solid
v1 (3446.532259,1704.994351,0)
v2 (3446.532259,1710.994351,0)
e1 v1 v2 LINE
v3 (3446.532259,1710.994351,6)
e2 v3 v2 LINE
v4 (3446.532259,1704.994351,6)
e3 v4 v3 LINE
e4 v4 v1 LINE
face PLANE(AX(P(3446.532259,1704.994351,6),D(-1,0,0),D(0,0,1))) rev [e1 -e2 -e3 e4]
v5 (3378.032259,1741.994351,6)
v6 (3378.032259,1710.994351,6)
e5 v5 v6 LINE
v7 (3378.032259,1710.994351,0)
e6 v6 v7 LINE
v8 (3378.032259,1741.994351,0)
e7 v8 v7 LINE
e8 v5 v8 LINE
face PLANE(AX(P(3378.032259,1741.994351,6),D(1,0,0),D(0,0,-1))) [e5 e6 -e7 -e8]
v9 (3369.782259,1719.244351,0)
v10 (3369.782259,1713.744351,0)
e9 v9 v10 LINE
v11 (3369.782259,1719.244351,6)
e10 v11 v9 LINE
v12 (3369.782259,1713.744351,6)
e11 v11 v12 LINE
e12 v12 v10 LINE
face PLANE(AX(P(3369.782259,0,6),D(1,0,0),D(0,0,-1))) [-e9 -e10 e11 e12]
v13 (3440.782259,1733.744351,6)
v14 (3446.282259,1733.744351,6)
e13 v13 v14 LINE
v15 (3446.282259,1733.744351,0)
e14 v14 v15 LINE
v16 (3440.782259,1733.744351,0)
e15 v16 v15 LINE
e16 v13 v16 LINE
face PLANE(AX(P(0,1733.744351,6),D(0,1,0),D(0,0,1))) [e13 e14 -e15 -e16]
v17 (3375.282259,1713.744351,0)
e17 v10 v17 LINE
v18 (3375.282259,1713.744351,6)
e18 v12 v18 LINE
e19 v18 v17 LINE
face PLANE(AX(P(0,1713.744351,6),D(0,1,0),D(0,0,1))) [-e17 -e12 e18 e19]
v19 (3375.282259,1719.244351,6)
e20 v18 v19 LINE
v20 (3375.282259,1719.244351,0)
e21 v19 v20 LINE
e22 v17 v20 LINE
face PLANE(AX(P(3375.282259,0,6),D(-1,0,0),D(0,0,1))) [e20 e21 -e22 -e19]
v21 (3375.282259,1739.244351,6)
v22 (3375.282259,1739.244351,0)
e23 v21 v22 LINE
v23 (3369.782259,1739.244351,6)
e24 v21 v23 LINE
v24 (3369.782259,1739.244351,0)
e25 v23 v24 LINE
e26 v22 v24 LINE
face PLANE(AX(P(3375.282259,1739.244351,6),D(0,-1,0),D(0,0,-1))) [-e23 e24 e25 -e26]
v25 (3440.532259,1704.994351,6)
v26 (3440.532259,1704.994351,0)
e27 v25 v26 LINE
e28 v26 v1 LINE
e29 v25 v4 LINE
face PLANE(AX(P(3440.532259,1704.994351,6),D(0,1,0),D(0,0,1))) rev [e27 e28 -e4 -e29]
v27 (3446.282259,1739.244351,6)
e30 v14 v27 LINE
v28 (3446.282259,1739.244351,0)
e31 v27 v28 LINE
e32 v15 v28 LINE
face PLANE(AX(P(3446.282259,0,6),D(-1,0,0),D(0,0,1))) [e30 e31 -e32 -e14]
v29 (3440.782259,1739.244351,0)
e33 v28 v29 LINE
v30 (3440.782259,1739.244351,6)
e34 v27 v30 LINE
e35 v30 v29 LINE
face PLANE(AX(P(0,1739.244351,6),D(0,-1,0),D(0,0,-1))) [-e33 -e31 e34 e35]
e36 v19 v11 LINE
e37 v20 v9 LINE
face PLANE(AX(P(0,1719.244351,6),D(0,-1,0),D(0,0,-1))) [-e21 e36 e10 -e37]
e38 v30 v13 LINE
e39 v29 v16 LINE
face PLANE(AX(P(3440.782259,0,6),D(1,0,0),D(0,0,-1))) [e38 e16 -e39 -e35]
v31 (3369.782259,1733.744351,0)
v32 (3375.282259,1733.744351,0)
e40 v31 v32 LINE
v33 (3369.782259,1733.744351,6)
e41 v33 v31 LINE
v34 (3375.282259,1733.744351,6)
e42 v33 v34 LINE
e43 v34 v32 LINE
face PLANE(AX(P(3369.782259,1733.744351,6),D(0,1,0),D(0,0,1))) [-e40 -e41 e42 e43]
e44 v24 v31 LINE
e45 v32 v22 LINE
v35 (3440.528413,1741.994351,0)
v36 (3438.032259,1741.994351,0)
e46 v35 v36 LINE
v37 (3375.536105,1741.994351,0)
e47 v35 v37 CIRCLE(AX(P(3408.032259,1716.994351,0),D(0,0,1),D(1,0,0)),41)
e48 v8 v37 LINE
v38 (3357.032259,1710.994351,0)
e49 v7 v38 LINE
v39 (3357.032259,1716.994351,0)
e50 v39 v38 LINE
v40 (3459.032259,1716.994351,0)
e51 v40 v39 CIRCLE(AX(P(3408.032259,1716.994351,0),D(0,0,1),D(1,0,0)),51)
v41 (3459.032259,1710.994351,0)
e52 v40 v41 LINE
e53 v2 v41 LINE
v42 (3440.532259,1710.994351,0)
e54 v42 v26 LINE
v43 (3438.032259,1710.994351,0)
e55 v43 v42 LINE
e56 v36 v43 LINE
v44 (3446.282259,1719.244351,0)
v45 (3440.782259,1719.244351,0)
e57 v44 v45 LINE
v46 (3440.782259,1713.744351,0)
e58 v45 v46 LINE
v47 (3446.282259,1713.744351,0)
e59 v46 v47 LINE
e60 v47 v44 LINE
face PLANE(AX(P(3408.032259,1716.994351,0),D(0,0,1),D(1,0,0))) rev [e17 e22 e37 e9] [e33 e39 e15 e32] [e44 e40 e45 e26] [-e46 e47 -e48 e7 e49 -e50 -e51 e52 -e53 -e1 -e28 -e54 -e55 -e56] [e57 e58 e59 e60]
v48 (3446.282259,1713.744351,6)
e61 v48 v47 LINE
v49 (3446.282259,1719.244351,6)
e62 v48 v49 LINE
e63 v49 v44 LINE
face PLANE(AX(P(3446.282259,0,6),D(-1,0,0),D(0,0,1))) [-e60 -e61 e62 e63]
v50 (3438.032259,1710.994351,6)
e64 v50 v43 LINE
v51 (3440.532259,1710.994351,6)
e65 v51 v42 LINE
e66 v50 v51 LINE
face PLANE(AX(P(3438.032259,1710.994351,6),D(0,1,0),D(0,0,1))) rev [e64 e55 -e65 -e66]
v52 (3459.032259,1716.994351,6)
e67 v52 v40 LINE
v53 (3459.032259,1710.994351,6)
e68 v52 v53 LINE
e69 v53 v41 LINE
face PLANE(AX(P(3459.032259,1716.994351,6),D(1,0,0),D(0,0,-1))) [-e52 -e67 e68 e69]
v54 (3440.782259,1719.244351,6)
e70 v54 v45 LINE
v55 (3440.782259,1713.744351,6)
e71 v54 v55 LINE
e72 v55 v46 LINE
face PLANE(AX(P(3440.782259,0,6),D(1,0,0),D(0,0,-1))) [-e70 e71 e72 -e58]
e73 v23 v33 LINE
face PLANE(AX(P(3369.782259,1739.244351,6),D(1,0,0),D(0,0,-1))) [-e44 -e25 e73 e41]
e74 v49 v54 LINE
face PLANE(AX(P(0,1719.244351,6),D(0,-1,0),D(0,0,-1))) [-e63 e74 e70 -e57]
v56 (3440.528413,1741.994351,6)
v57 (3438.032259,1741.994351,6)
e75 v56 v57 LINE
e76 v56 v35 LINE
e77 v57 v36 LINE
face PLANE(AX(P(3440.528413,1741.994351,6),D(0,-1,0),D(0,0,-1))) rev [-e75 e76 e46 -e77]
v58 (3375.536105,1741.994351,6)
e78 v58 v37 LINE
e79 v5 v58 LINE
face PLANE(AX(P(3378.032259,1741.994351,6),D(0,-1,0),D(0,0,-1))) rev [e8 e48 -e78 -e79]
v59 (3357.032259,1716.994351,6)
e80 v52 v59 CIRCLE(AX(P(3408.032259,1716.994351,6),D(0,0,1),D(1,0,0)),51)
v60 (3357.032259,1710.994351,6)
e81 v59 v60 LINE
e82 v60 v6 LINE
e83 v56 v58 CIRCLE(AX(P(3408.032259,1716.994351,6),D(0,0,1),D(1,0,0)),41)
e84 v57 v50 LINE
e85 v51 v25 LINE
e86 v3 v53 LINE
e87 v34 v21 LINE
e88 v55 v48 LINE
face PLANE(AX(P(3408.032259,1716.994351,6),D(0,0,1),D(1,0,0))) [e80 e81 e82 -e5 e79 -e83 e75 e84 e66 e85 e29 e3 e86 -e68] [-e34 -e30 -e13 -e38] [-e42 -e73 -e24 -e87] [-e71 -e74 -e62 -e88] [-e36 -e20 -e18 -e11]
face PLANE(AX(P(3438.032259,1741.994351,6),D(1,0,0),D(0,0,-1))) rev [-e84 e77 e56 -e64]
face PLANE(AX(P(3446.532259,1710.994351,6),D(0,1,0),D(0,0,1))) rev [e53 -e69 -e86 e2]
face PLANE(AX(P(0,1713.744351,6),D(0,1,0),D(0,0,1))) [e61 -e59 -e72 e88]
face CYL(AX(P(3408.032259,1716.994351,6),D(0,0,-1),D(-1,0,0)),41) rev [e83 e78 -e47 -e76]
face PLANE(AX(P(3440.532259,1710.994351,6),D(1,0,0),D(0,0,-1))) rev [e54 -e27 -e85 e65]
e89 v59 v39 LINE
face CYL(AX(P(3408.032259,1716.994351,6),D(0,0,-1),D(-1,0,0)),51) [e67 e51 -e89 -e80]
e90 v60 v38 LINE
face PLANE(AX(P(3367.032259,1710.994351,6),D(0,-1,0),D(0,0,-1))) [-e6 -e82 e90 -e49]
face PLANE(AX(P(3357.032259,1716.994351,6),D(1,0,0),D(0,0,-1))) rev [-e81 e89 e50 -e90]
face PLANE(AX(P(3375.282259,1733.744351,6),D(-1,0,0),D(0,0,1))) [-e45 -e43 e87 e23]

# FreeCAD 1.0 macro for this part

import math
import FreeCAD as App
import Part
import Sketcher

V = App.Vector

doc = App.newDocument("Part")
params = doc.addObject("Spreadsheet::Sheet", "Params")
for row, (alias, value) in enumerate([
    ("sketch1_radius", "41 mm"),
    ("sketch1_radius2", "51 mm"),
    ("sketch1_width", "21 mm"),
    ("sketch1_width2", "6 mm"),
    ("sketch1_height", "31 mm"),
    ("pad1_length", "6 mm"),
], start=1):
    params.set(f"A{row}", alias)
    params.set(f"B{row}", "=" + value)
    params.setAlias(f"B{row}", alias)

body = doc.addObject("PartDesign::Body", "Body")

sketch1 = body.newObject("Sketcher::SketchObject", "Sketch")
sketch1.AttachmentSupport = (doc.getObject("XY_Plane"), [""])
sketch1.MapMode = "FlatFace"
sketch1.addGeometry([
    Part.LineSegment(V(3357, 1717, 0), V(3357, 1711, 0)),
    Part.LineSegment(V(3357, 1711, 0), V(3378, 1711, 0)),
    Part.LineSegment(V(3378, 1711, 0), V(3378, 1742, 0)),
    Part.LineSegment(V(3378, 1742, 0), V(3375.5, 1742, 0)),
    Part.ArcOfCircle(Part.Circle(V(3408, 1717, 0), V(0, 0, 1), 41), math.radians(38), math.radians(142)),
    Part.LineSegment(V(3440.5, 1742, 0), V(3438, 1742, 0)),
    Part.LineSegment(V(3438, 1742, 0), V(3438, 1711, 0)),
    Part.LineSegment(V(3438, 1711, 0), V(3440.5, 1711, 0)),
    Part.LineSegment(V(3440.5, 1711, 0), V(3440.5, 1705, 0)),
    Part.LineSegment(V(3440.5, 1705, 0), V(3446.5, 1705, 0)),
    Part.LineSegment(V(3446.5, 1705, 0), V(3446.5, 1711, 0)),
    Part.LineSegment(V(3446.5, 1711, 0), V(3459, 1711, 0)),
    Part.LineSegment(V(3459, 1711, 0), V(3459, 1717, 0)),
    Part.ArcOfCircle(Part.Circle(V(3408, 1717, 0), V(0, 0, 1), 51), math.radians(0), math.radians(180)),
    Part.LineSegment(V(3375.3, 1713.7, 0), V(3369.8, 1713.7, 0)),
    Part.LineSegment(V(3369.8, 1713.7, 0), V(3369.8, 1719.2, 0)),
    Part.LineSegment(V(3369.8, 1719.2, 0), V(3375.3, 1719.2, 0)),
    Part.LineSegment(V(3375.3, 1719.2, 0), V(3375.3, 1713.7, 0)),
    Part.LineSegment(V(3446.3, 1713.7, 0), V(3440.8, 1713.7, 0)),
    Part.LineSegment(V(3440.8, 1713.7, 0), V(3440.8, 1719.2, 0)),
    Part.LineSegment(V(3440.8, 1719.2, 0), V(3446.3, 1719.2, 0)),
    Part.LineSegment(V(3446.3, 1719.2, 0), V(3446.3, 1713.7, 0)),
    Part.LineSegment(V(3375.3, 1733.7, 0), V(3369.8, 1733.7, 0)),
    Part.LineSegment(V(3369.8, 1733.7, 0), V(3369.8, 1739.2, 0)),
    Part.LineSegment(V(3369.8, 1739.2, 0), V(3375.3, 1739.2, 0)),
    Part.LineSegment(V(3375.3, 1739.2, 0), V(3375.3, 1733.7, 0)),
    Part.LineSegment(V(3446.3, 1733.7, 0), V(3440.8, 1733.7, 0)),
    Part.LineSegment(V(3440.8, 1733.7, 0), V(3440.8, 1739.2, 0)),
    Part.LineSegment(V(3440.8, 1739.2, 0), V(3446.3, 1739.2, 0)),
    Part.LineSegment(V(3446.3, 1739.2, 0), V(3446.3, 1733.7, 0)),
], False)
sketch1.addConstraint([
    Sketcher.Constraint("Coincident", 0, 2, 1, 1),
    Sketcher.Constraint("Coincident", 1, 2, 2, 1),
    Sketcher.Constraint("Coincident", 2, 2, 3, 1),
    Sketcher.Constraint("Coincident", 3, 2, 4, 2),
    Sketcher.Constraint("Coincident", 4, 1, 5, 1),
    Sketcher.Constraint("Coincident", 5, 2, 6, 1),
    Sketcher.Constraint("Coincident", 6, 2, 7, 1),
    Sketcher.Constraint("Coincident", 7, 2, 8, 1),
    Sketcher.Constraint("Coincident", 8, 2, 9, 1),
    Sketcher.Constraint("Coincident", 9, 2, 10, 1),
    Sketcher.Constraint("Coincident", 10, 2, 11, 1),
    Sketcher.Constraint("Coincident", 11, 2, 12, 1),
    Sketcher.Constraint("Tangent", 12, 2, 13, 1),
    Sketcher.Constraint("Tangent", 13, 2, 0, 1),
    Sketcher.Constraint("Coincident", 14, 2, 15, 1),
    Sketcher.Constraint("Coincident", 15, 2, 16, 1),
    Sketcher.Constraint("Coincident", 16, 2, 17, 1),
    Sketcher.Constraint("Coincident", 17, 2, 14, 1),
    Sketcher.Constraint("Coincident", 18, 2, 19, 1),
    Sketcher.Constraint("Coincident", 19, 2, 20, 1),
    Sketcher.Constraint("Coincident", 20, 2, 21, 1),
    Sketcher.Constraint("Coincident", 21, 2, 18, 1),
    Sketcher.Constraint("Coincident", 22, 2, 23, 1),
    Sketcher.Constraint("Coincident", 23, 2, 24, 1),
    Sketcher.Constraint("Coincident", 24, 2, 25, 1),
    Sketcher.Constraint("Coincident", 25, 2, 22, 1),
    Sketcher.Constraint("Coincident", 26, 2, 27, 1),
    Sketcher.Constraint("Coincident", 27, 2, 28, 1),
    Sketcher.Constraint("Coincident", 28, 2, 29, 1),
    Sketcher.Constraint("Coincident", 29, 2, 26, 1),
    Sketcher.Constraint("Vertical", 0),
    Sketcher.Constraint("Horizontal", 1),
    Sketcher.Constraint("Vertical", 2),
    Sketcher.Constraint("Horizontal", 3),
    Sketcher.Constraint("Horizontal", 5),
    Sketcher.Constraint("Vertical", 6),
    Sketcher.Constraint("Horizontal", 7),
    Sketcher.Constraint("Vertical", 8),
    Sketcher.Constraint("Horizontal", 9),
    Sketcher.Constraint("Vertical", 10),
    Sketcher.Constraint("Horizontal", 11),
    Sketcher.Constraint("Vertical", 12),
    Sketcher.Constraint("Horizontal", 14),
    Sketcher.Constraint("Vertical", 15),
    Sketcher.Constraint("Horizontal", 16),
    Sketcher.Constraint("Vertical", 17),
    Sketcher.Constraint("Horizontal", 18),
    Sketcher.Constraint("Vertical", 19),
    Sketcher.Constraint("Horizontal", 20),
    Sketcher.Constraint("Vertical", 21),
    Sketcher.Constraint("Horizontal", 22),
    Sketcher.Constraint("Vertical", 23),
    Sketcher.Constraint("Horizontal", 24),
    Sketcher.Constraint("Vertical", 25),
    Sketcher.Constraint("Horizontal", 26),
    Sketcher.Constraint("Vertical", 27),
    Sketcher.Constraint("Horizontal", 28),
    Sketcher.Constraint("Vertical", 29),
    Sketcher.Constraint("Coincident", 13, 3, 4, 3),
    Sketcher.Constraint("Horizontal", 3, 2, 4, 1),
    Sketcher.Constraint("Horizontal", 1, 2, 6, 2),
    Sketcher.Constraint("Horizontal", 7, 2, 10, 2),
    Sketcher.Constraint("Horizontal", 17, 2, 18, 2),
    Sketcher.Constraint("Horizontal", 16, 2, 19, 2),
    Sketcher.Constraint("Horizontal", 25, 2, 26, 2),
    Sketcher.Constraint("Horizontal", 24, 2, 27, 2),
    Sketcher.Constraint("Vertical", 15, 2, 22, 2),
    Sketcher.Constraint("Vertical", 17, 2, 24, 2),
    Sketcher.Constraint("Vertical", 19, 2, 26, 2),
    Sketcher.Constraint("Vertical", 21, 2, 28, 2),
    Sketcher.Constraint("Equal", 3, 5),
    Sketcher.Constraint("Equal", 16, 18),
    Sketcher.Constraint("Equal", 9, 0),
    Sketcher.Constraint("Equal", 0, 8),
    Sketcher.Constraint("Equal", 28, 15),
    Sketcher.Constraint("Equal", 21, 23),
    Sketcher.Constraint("Radius", 4, 41.0),
    Sketcher.Constraint("Radius", 13, 51.0),
    Sketcher.Constraint("DistanceX", 1, 1, 1, 2, 21.0),
    Sketcher.Constraint("DistanceX", 9, 1, 9, 2, 6.0),
    Sketcher.Constraint("DistanceY", 2, 1, 2, 2, 31.0),
    Sketcher.Constraint("DistanceX", 7, 1, 7, 2, 2.5),
    Sketcher.Constraint("DistanceX", 14, 2, 14, 1, 5.5),
    Sketcher.Constraint("DistanceY", 14, 2, 22, 2, 20.0),
    Sketcher.Constraint("DistanceX", 14, 2, 1, 2, 8.25),
    Sketcher.Constraint("DistanceY", 1, 2, 14, 2, 2.75),
    Sketcher.Constraint("DistanceX", 7, 2, 18, 2, 0.25),
    Sketcher.Constraint("DistanceX", -1, 1, 4, 3, 3408.032259),
    Sketcher.Constraint("DistanceY", -1, 1, 4, 3, 1716.994351),
])
sketch1.setExpression("Constraints[76]", "Params.sketch1_radius")
sketch1.setExpression("Constraints[77]", "Params.sketch1_radius2")
sketch1.setExpression("Constraints[78]", "Params.sketch1_width")
sketch1.setExpression("Constraints[79]", "Params.sketch1_width2")
sketch1.setExpression("Constraints[80]", "Params.sketch1_height")
pad1 = body.newObject("PartDesign::Pad", "Pad")
pad1.Profile = sketch1
pad1.setExpression("Length", "Params.pad1_length")

doc.recompute()
